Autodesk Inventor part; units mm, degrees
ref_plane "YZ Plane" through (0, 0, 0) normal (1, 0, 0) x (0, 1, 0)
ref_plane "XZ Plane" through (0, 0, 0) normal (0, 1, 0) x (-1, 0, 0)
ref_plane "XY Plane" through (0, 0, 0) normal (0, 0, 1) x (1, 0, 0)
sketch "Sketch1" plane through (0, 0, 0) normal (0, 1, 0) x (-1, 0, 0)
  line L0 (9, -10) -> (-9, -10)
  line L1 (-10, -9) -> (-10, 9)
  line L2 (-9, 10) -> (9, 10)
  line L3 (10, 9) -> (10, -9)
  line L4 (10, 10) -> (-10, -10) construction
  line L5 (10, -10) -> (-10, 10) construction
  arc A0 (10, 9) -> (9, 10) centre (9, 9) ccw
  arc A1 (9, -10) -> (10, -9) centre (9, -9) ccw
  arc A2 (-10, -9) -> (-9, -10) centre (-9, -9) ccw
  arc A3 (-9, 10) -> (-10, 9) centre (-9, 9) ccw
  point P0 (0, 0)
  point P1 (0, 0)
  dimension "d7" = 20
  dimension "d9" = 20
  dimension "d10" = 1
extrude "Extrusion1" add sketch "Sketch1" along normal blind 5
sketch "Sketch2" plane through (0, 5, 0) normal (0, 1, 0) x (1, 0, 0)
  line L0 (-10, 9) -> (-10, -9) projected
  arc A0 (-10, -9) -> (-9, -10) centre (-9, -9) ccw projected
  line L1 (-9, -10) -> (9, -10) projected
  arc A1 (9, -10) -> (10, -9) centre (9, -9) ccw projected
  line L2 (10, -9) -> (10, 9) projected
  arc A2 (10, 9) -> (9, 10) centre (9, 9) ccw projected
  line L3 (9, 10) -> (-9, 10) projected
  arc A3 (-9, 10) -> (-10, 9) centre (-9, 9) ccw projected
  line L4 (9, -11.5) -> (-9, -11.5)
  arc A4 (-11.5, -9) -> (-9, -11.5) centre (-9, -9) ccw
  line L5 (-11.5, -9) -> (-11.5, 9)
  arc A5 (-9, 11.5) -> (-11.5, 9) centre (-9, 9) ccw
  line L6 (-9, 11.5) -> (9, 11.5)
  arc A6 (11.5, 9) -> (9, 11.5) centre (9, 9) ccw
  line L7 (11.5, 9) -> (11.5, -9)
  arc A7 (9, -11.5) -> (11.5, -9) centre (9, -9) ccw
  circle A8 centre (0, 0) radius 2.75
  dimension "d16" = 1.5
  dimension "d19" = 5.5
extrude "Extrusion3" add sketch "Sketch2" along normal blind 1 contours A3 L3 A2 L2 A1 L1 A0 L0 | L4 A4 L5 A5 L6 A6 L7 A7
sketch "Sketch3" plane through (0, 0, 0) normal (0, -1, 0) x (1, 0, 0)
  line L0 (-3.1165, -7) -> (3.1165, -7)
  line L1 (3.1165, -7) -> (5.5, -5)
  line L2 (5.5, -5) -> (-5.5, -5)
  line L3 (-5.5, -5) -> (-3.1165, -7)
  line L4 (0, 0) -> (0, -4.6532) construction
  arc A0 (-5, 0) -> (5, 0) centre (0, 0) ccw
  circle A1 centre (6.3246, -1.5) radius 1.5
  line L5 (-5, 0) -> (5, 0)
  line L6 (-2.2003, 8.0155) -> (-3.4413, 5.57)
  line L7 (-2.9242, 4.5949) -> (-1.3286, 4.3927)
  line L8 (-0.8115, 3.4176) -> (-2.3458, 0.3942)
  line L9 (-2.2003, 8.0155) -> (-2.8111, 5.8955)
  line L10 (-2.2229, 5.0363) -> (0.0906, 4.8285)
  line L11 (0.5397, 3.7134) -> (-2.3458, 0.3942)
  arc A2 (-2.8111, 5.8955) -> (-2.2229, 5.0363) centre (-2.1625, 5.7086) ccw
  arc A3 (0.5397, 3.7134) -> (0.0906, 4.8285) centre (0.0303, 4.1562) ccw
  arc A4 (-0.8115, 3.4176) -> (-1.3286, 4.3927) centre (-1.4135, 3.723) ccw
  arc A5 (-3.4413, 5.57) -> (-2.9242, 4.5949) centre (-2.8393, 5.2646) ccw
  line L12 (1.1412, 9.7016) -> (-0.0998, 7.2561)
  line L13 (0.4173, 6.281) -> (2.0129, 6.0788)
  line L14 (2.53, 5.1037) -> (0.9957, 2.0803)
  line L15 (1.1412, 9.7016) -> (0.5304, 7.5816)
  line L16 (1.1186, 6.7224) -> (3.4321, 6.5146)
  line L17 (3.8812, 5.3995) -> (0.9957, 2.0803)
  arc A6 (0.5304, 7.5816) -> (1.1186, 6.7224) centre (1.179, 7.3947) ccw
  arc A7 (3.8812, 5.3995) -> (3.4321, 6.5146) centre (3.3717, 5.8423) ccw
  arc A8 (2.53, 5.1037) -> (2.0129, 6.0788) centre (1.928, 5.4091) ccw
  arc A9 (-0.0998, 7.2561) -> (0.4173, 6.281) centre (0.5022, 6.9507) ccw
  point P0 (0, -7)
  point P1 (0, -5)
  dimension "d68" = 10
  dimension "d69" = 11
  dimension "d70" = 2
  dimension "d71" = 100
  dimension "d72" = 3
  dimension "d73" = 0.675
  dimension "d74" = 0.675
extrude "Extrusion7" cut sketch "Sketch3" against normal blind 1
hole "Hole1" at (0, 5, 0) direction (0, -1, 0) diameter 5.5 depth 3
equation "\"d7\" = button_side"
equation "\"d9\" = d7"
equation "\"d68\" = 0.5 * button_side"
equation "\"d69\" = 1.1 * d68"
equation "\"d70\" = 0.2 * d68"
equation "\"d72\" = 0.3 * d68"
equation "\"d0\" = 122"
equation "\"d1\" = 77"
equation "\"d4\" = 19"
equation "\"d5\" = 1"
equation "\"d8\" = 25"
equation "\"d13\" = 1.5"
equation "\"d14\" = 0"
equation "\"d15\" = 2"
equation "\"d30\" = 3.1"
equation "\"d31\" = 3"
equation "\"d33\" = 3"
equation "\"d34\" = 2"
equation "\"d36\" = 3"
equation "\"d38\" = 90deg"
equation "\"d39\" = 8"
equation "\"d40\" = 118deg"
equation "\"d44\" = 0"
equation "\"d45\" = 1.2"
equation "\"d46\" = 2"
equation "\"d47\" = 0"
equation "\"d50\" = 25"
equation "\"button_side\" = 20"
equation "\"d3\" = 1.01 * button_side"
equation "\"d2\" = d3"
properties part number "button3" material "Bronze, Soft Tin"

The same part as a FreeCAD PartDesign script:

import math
import FreeCAD as App
import Part
import Sketcher
from FreeCAD import Vector

doc = App.newDocument("Part")
body = doc.addObject("PartDesign::Body", "Body")

sketch1 = body.newObject("Sketcher::SketchObject", "Sketch")
sketch1.AttachmentSupport = (doc.getObject("XZ_Plane"), [""])
sketch1.MapMode = "FlatFace"
sketch1.addGeometry([
    Part.LineSegment(Vector(9, -10, 0), Vector(-9, -10, 0)),
    Part.ArcOfCircle(Part.Circle(Vector(-9, -9, 0), Vector(0, 0, 1), 1), math.radians(180), math.radians(270)),
    Part.LineSegment(Vector(-10, -9, 0), Vector(-10, 9, 0)),
    Part.ArcOfCircle(Part.Circle(Vector(-9, 9, 0), Vector(0, 0, 1), 1), math.radians(90), math.radians(180)),
    Part.LineSegment(Vector(-9, 10, 0), Vector(9, 10, 0)),
    Part.ArcOfCircle(Part.Circle(Vector(9, 9, 0), Vector(0, 0, 1), 1), math.radians(0), math.radians(90)),
    Part.LineSegment(Vector(10, 9, 0), Vector(10, -9, 0)),
    Part.ArcOfCircle(Part.Circle(Vector(9, -9, 0), Vector(0, 0, 1), 1), math.radians(-90), math.radians(0)),
], False)
sketch1.addConstraint([
    Sketcher.Constraint("Tangent", 0, 2, 1, 2),
    Sketcher.Constraint("Tangent", 1, 1, 2, 1),
    Sketcher.Constraint("Tangent", 2, 2, 3, 2),
    Sketcher.Constraint("Tangent", 3, 1, 4, 1),
    Sketcher.Constraint("Tangent", 4, 2, 5, 2),
    Sketcher.Constraint("Tangent", 5, 1, 6, 1),
    Sketcher.Constraint("Tangent", 6, 2, 7, 2),
    Sketcher.Constraint("Tangent", 7, 1, 0, 1),
    Sketcher.Constraint("Horizontal", 0),
    Sketcher.Constraint("Vertical", 2),
    Sketcher.Constraint("Horizontal", 4),
    Sketcher.Constraint("Vertical", 6),
    Sketcher.Constraint("Equal", 1, 3),
    Sketcher.Constraint("Equal", 3, 5),
    Sketcher.Constraint("Equal", 5, 7),
    Sketcher.Constraint("Symmetric", 1, 3, 5, 3, -1, 1),
    Sketcher.Constraint("Equal", 4, 2),
    Sketcher.Constraint("Radius", 1, 1.0),
    Sketcher.Constraint("DistanceX", 0, 2, 0, 1, 18.0),
])
pad1 = body.newObject("PartDesign::Pad", "Pad")
pad1.Profile = sketch1
pad1.Length = 5
pad1.Reversed = True

sketch2 = body.newObject("Sketcher::SketchObject", "Sketch001")
sketch2.AttachmentSupport = (doc.getObject("XZ_Plane"), [""])
sketch2.MapMode = "FlatFace"
sketch2.AttachmentOffset = App.Placement(Vector(0, 0, -5), App.Rotation())
sketch2.addGeometry([
    Part.LineSegment(Vector(-9, 11.5, 0), Vector(9, 11.5, 0)),
    Part.ArcOfCircle(Part.Circle(Vector(9, 9, 0), Vector(0, 0, 1), 2.5), math.radians(0), math.radians(90)),
    Part.LineSegment(Vector(11.5, 9, 0), Vector(11.5, -9, 0)),
    Part.ArcOfCircle(Part.Circle(Vector(9, -9, 0), Vector(0, 0, 1), 2.5), math.radians(-90), math.radians(0)),
    Part.LineSegment(Vector(9, -11.5, 0), Vector(-9, -11.5, 0)),
    Part.ArcOfCircle(Part.Circle(Vector(-9, -9, 0), Vector(0, 0, 1), 2.5), math.radians(180), math.radians(270)),
    Part.LineSegment(Vector(-11.5, -9, 0), Vector(-11.5, 9, 0)),
    Part.ArcOfCircle(Part.Circle(Vector(-9, 9, 0), Vector(0, 0, 1), 2.5), math.radians(90), math.radians(180)),
    Part.Circle(Vector(0, 0, 0), Vector(0, 0, 1), 2.8),
], False)
sketch2.addConstraint([
    Sketcher.Constraint("Tangent", 0, 2, 1, 2),
    Sketcher.Constraint("Tangent", 1, 1, 2, 1),
    Sketcher.Constraint("Tangent", 2, 2, 3, 2),
    Sketcher.Constraint("Tangent", 3, 1, 4, 1),
    Sketcher.Constraint("Tangent", 4, 2, 5, 2),
    Sketcher.Constraint("Tangent", 5, 1, 6, 1),
    Sketcher.Constraint("Tangent", 6, 2, 7, 2),
    Sketcher.Constraint("Tangent", 7, 1, 0, 1),
    Sketcher.Constraint("Horizontal", 0),
    Sketcher.Constraint("Vertical", 2),
    Sketcher.Constraint("Horizontal", 4),
    Sketcher.Constraint("Vertical", 6),
    Sketcher.Constraint("Coincident", 8, 3, -1, 1),
    Sketcher.Constraint("Equal", 1, 3),
    Sketcher.Constraint("Equal", 3, 5),
    Sketcher.Constraint("Equal", 5, 7),
    Sketcher.Constraint("Symmetric", 1, 3, 5, 3, -1, 1),
    Sketcher.Constraint("Equal", 4, 2),
    Sketcher.Constraint("Diameter", 8, 5.5),
    Sketcher.Constraint("Radius", 1, 2.5),
    Sketcher.Constraint("DistanceX", 0, 1, 0, 2, 18.0),
])
pad2 = body.newObject("PartDesign::Pad", "Pad001")
pad2.Profile = sketch2
pad2.Length = 1
pad2.Reversed = True

sketch3 = body.newObject("Sketcher::SketchObject", "Sketch002")
sketch3.AttachmentSupport = (doc.getObject("XZ_Plane"), [""])
sketch3.MapMode = "FlatFace"
sketch3.addGeometry([
    Part.LineSegment(Vector(-5.5, -5, 0), Vector(-3.1165, -7, 0)),
    Part.LineSegment(Vector(-3.1165, -7, 0), Vector(3.1165, -7, 0)),
    Part.LineSegment(Vector(3.1165, -7, 0), Vector(5.5, -5, 0)),
    Part.LineSegment(Vector(5.5, -5, 0), Vector(0, -5, 0)),
    Part.LineSegment(Vector(0, -5, 0), Vector(-5.5, -5, 0)),
    Part.Circle(Vector(6.3246, -1.5, 0), Vector(0, 0, 1), 1.5),
    Part.ArcOfCircle(Part.Circle(Vector(0, 0, 0), Vector(0, 0, 1), 5), math.radians(180), math.radians(270)),
    Part.ArcOfCircle(Part.Circle(Vector(0, 0, 0), Vector(0, 0, 1), 5), math.radians(-90), math.radians(-13.342273)),
    Part.ArcOfCircle(Part.Circle(Vector(0, 0, 0), Vector(0, 0, 1), 5), math.radians(-13.342273), math.radians(0)),
    Part.LineSegment(Vector(5, 0, 0), Vector(-5, 0, 0)),
    Part.LineSegment(Vector(-2.8111, 5.8955, 0), Vector(-2.2003, 8.0155, 0)),
    Part.LineSegment(Vector(-2.2003, 8.0155, 0), Vector(-3.4413, 5.57, 0)),
    Part.ArcOfCircle(Part.Circle(Vector(-2.8393, 5.2646, 0), Vector(0, 0, 1), 0.675036), math.radians(153.100911), math.radians(262.774973)),
    Part.LineSegment(Vector(-2.9242, 4.5949, 0), Vector(-1.3286, 4.3927, 0)),
    Part.ArcOfCircle(Part.Circle(Vector(-1.4135, 3.723, 0), Vector(0, 0, 1), 0.675036), math.radians(-26.899089), math.radians(82.774973)),
    Part.LineSegment(Vector(-0.8115, 3.4176, 0), Vector(-2.3458, 0.3942, 0)),
    Part.LineSegment(Vector(-2.3458, 0.3942, 0), Vector(0.5397, 3.7134, 0)),
    Part.ArcOfCircle(Part.Circle(Vector(0.0303, 4.1562, 0), Vector(0, 0, 1), 0.674952), math.radians(-40.999061), math.radians(84.874735)),
    Part.LineSegment(Vector(0.0906, 4.8285, 0), Vector(-2.2229, 5.0363, 0)),
    Part.ArcOfCircle(Part.Circle(Vector(-2.1625, 5.7086, 0), Vector(0, 0, 1), 0.674992), math.radians(163.925182), math.radians(264.866281)),
    Part.LineSegment(Vector(0.5304, 7.5816, 0), Vector(1.1412, 9.7016, 0)),
    Part.LineSegment(Vector(1.1412, 9.7016, 0), Vector(-0.0998, 7.2561, 0)),
    Part.ArcOfCircle(Part.Circle(Vector(0.5022, 6.9507, 0), Vector(0, 0, 1), 0.675036), math.radians(153.100911), math.radians(262.774973)),
    Part.LineSegment(Vector(0.4173, 6.281, 0), Vector(2.0129, 6.0788, 0)),
    Part.ArcOfCircle(Part.Circle(Vector(1.928, 5.4091, 0), Vector(0, 0, 1), 0.675036), math.radians(-26.899089), math.radians(82.774973)),
    Part.LineSegment(Vector(2.53, 5.1037, 0), Vector(0.9957, 2.0803, 0)),
    Part.LineSegment(Vector(0.9957, 2.0803, 0), Vector(3.8812, 5.3995, 0)),
    Part.ArcOfCircle(Part.Circle(Vector(3.3717, 5.8423, 0), Vector(0, 0, 1), 0.675027), math.radians(-40.993492), math.radians(84.866281)),
    Part.LineSegment(Vector(3.4321, 6.5146, 0), Vector(1.1186, 6.7224, 0)),
    Part.ArcOfCircle(Part.Circle(Vector(1.179, 7.3947, 0), Vector(0, 0, 1), 0.674992), math.radians(163.925182), math.radians(264.866281)),
], False)
sketch3.addConstraint([
    Sketcher.Constraint("Coincident", 0, 2, 1, 1),
    Sketcher.Constraint("Coincident", 1, 2, 2, 1),
    Sketcher.Constraint("Coincident", 2, 2, 3, 1),
    Sketcher.Constraint("Coincident", 3, 2, 4, 1),
    Sketcher.Constraint("Coincident", 4, 2, 0, 1),
    Sketcher.Constraint("Coincident", 6, 2, 7, 1),
    Sketcher.Constraint("Coincident", 7, 2, 8, 1),
    Sketcher.Constraint("Coincident", 8, 2, 9, 1),
    Sketcher.Constraint("Coincident", 9, 2, 6, 1),
    Sketcher.Constraint("Coincident", 10, 2, 11, 1),
    Sketcher.Constraint("Coincident", 11, 2, 12, 1),
    Sketcher.Constraint("Coincident", 12, 2, 13, 1),
    Sketcher.Constraint("Coincident", 13, 2, 14, 2),
    Sketcher.Constraint("Coincident", 14, 1, 15, 1),
    Sketcher.Constraint("Coincident", 15, 2, 16, 1),
    Sketcher.Constraint("Coincident", 16, 2, 17, 1),
    Sketcher.Constraint("Coincident", 17, 2, 18, 1),
    Sketcher.Constraint("Coincident", 18, 2, 19, 2),
    Sketcher.Constraint("Coincident", 19, 1, 10, 1),
    Sketcher.Constraint("Coincident", 20, 2, 21, 1),
    Sketcher.Constraint("Coincident", 21, 2, 22, 1),
    Sketcher.Constraint("Coincident", 22, 2, 23, 1),
    Sketcher.Constraint("Coincident", 23, 2, 24, 2),
    Sketcher.Constraint("Coincident", 24, 1, 25, 1),
    Sketcher.Constraint("Coincident", 25, 2, 26, 1),
    Sketcher.Constraint("Coincident", 26, 2, 27, 1),
    Sketcher.Constraint("Coincident", 27, 2, 28, 1),
    Sketcher.Constraint("Coincident", 28, 2, 29, 2),
    Sketcher.Constraint("Coincident", 29, 1, 20, 1),
    Sketcher.Constraint("Horizontal", 1),
    Sketcher.Constraint("Horizontal", 3),
    Sketcher.Constraint("Horizontal", 4),
    Sketcher.Constraint("Horizontal", 9),
    Sketcher.Constraint("Coincident", 6, 3, -1, 1),
    Sketcher.Constraint("Coincident", 7, 3, -1, 1),
    Sketcher.Constraint("Coincident", 8, 3, -1, 1),
    Sketcher.Constraint("Coincident", 6, 2, 3, 2),
    Sketcher.Constraint("PointOnObject", 3, 2, -2),
    Sketcher.Constraint("PointOnObject", 8, 2, -1),
    Sketcher.Constraint("Diameter", 5, 3.0),
    Sketcher.Constraint("Radius", 6, 5.0),
    Sketcher.Constraint("Radius", 12, 0.675),
    Sketcher.Constraint("Radius", 14, 0.675),
    Sketcher.Constraint("Radius", 17, 0.675),
    Sketcher.Constraint("Radius", 19, 0.675),
    Sketcher.Constraint("Radius", 22, 0.675),
    Sketcher.Constraint("Radius", 24, 0.675),
    Sketcher.Constraint("Radius", 27, 0.675),
    Sketcher.Constraint("Radius", 29, 0.675),
    Sketcher.Constraint("DistanceY", 1, 2, 2, 2, 2.0),
    Sketcher.Constraint("DistanceX", 3, 2, 3, 1, 5.5),
    Sketcher.Constraint("DistanceX", 4, 2, 4, 1, 5.5),
    Sketcher.Constraint("DistanceY", 5, 3, -1, 1, 1.5),
    Sketcher.Constraint("DistanceX", 1, 1, 1, 2, 6.233),
    Sketcher.Constraint("DistanceY", -1, 1, 11, 2, 5.57),
    Sketcher.Constraint("DistanceX", -1, 1, 24, 1, 2.53),
    Sketcher.Constraint("Distance", 16, 4.398),
    Sketcher.Constraint("Distance", 26, 4.398),
    Sketcher.Constraint("DistanceY", -1, 1, 14, 3, 3.723),
    Sketcher.Constraint("DistanceX", -1, 1, 24, 3, 1.928),
    Sketcher.Constraint("DistanceY", -1, 1, 24, 3, 5.409),
    Sketcher.Constraint("DistanceX", -1, 1, 29, 3, 1.179),
    Sketcher.Constraint("DistanceX", -1, 1, 7, 2, 4.865),
    Sketcher.Constraint("DistanceY", -1, 1, 12, 2, 4.595),
    Sketcher.Constraint("DistanceX", 18, 2, -1, 1, 2.223),
    Sketcher.Constraint("DistanceX", 19, 1, -1, 1, 2.811),
    Sketcher.Constraint("DistanceY", -1, 1, 21, 2, 7.256),
    Sketcher.Constraint("DistanceY", -1, 1, 22, 2, 6.281),
    Sketcher.Constraint("DistanceX", -1, 1, 23, 2, 2.013),
    Sketcher.Constraint("DistanceX", -1, 1, 27, 2, 3.432),
    Sketcher.Constraint("DistanceX", 12, 3, 5, 3, 9.164),
    Sketcher.Constraint("DistanceX", 14, 3, 5, 3, 7.738),
    Sketcher.Constraint("DistanceY", 12, 3, 19, 3, 0.444),
    Sketcher.Constraint("DistanceX", 19, 3, 14, 3, 0.749),
    Sketcher.Constraint("DistanceX", 17, 3, 22, 3, 0.472),
    Sketcher.Constraint("DistanceY", 19, 3, 22, 3, 1.242),
    Sketcher.Constraint("DistanceY", 17, 3, 24, 3, 1.253),
    Sketcher.Constraint("DistanceY", 17, 3, 27, 3, 1.686),
    Sketcher.Constraint("DistanceY", 22, 3, 29, 3, 0.444),
    Sketcher.Constraint("DistanceX", 0, 2, 14, 3, 1.703),
    Sketcher.Constraint("DistanceY", 19, 3, 10, 2, 2.307),
    Sketcher.Constraint("DistanceX", 12, 3, 10, 2, 0.639),
    Sketcher.Constraint("DistanceX", 11, 2, 12, 3, 0.602),
    Sketcher.Constraint("DistanceX", 14, 3, 13, 2, 0.085),
    Sketcher.Constraint("DistanceX", 13, 2, 17, 3, 1.359),
    Sketcher.Constraint("DistanceX", 14, 3, 14, 1, 0.602),
    Sketcher.Constraint("DistanceX", 17, 2, 16, 2, 0.449),
    Sketcher.Constraint("DistanceY", 16, 2, 17, 2, 1.115),
    Sketcher.Constraint("DistanceY", 12, 3, 19, 1, 0.631),
    Sketcher.Constraint("DistanceY", 29, 3, 20, 2, 2.307),
    Sketcher.Constraint("DistanceX", 22, 3, 20, 2, 0.639),
    Sketcher.Constraint("DistanceX", 16, 2, 25, 2, 0.456),
    Sketcher.Constraint("DistanceY", 25, 2, 16, 2, 1.633),
    Sketcher.Constraint("DistanceX", 27, 2, 26, 2, 0.449),
    Sketcher.Constraint("DistanceY", 22, 3, 29, 1, 0.631),
    Sketcher.Constraint("Distance", 15, 3.3904),
    Sketcher.Constraint("Distance", 28, 2.3228),
])
pocket1 = body.newObject("PartDesign::Pocket", "Pocket")
pocket1.Profile = sketch3
pocket1.Length = 1

sketch4 = body.newObject("Sketcher::SketchObject", "Sketch003")
sketch4.AttachmentSupport = (doc.getObject("XZ_Plane"), [""])
sketch4.MapMode = "FlatFace"
sketch4.AttachmentOffset = App.Placement(Vector(0, 0, -5), App.Rotation())
sketch4.addGeometry(Part.Circle(Vector(0, 0, 0), Vector(0, 0, 1), 2.8), False)
sketch4.addConstraint([
    Sketcher.Constraint("Coincident", 0, 3, -1, 1),
    Sketcher.Constraint("Diameter", 0, 5.5),
])
doc.recompute()
hole = body.newObject("PartDesign::Hole", "Hole")
hole.Profile = sketch4
hole.ThreadType = "None"
hole.Diameter = 5.5
hole.DepthType = "Dimension"
hole.Depth = 3
hole.DrillPoint = "Flat"
hole.Reversed = True

doc.recompute()
